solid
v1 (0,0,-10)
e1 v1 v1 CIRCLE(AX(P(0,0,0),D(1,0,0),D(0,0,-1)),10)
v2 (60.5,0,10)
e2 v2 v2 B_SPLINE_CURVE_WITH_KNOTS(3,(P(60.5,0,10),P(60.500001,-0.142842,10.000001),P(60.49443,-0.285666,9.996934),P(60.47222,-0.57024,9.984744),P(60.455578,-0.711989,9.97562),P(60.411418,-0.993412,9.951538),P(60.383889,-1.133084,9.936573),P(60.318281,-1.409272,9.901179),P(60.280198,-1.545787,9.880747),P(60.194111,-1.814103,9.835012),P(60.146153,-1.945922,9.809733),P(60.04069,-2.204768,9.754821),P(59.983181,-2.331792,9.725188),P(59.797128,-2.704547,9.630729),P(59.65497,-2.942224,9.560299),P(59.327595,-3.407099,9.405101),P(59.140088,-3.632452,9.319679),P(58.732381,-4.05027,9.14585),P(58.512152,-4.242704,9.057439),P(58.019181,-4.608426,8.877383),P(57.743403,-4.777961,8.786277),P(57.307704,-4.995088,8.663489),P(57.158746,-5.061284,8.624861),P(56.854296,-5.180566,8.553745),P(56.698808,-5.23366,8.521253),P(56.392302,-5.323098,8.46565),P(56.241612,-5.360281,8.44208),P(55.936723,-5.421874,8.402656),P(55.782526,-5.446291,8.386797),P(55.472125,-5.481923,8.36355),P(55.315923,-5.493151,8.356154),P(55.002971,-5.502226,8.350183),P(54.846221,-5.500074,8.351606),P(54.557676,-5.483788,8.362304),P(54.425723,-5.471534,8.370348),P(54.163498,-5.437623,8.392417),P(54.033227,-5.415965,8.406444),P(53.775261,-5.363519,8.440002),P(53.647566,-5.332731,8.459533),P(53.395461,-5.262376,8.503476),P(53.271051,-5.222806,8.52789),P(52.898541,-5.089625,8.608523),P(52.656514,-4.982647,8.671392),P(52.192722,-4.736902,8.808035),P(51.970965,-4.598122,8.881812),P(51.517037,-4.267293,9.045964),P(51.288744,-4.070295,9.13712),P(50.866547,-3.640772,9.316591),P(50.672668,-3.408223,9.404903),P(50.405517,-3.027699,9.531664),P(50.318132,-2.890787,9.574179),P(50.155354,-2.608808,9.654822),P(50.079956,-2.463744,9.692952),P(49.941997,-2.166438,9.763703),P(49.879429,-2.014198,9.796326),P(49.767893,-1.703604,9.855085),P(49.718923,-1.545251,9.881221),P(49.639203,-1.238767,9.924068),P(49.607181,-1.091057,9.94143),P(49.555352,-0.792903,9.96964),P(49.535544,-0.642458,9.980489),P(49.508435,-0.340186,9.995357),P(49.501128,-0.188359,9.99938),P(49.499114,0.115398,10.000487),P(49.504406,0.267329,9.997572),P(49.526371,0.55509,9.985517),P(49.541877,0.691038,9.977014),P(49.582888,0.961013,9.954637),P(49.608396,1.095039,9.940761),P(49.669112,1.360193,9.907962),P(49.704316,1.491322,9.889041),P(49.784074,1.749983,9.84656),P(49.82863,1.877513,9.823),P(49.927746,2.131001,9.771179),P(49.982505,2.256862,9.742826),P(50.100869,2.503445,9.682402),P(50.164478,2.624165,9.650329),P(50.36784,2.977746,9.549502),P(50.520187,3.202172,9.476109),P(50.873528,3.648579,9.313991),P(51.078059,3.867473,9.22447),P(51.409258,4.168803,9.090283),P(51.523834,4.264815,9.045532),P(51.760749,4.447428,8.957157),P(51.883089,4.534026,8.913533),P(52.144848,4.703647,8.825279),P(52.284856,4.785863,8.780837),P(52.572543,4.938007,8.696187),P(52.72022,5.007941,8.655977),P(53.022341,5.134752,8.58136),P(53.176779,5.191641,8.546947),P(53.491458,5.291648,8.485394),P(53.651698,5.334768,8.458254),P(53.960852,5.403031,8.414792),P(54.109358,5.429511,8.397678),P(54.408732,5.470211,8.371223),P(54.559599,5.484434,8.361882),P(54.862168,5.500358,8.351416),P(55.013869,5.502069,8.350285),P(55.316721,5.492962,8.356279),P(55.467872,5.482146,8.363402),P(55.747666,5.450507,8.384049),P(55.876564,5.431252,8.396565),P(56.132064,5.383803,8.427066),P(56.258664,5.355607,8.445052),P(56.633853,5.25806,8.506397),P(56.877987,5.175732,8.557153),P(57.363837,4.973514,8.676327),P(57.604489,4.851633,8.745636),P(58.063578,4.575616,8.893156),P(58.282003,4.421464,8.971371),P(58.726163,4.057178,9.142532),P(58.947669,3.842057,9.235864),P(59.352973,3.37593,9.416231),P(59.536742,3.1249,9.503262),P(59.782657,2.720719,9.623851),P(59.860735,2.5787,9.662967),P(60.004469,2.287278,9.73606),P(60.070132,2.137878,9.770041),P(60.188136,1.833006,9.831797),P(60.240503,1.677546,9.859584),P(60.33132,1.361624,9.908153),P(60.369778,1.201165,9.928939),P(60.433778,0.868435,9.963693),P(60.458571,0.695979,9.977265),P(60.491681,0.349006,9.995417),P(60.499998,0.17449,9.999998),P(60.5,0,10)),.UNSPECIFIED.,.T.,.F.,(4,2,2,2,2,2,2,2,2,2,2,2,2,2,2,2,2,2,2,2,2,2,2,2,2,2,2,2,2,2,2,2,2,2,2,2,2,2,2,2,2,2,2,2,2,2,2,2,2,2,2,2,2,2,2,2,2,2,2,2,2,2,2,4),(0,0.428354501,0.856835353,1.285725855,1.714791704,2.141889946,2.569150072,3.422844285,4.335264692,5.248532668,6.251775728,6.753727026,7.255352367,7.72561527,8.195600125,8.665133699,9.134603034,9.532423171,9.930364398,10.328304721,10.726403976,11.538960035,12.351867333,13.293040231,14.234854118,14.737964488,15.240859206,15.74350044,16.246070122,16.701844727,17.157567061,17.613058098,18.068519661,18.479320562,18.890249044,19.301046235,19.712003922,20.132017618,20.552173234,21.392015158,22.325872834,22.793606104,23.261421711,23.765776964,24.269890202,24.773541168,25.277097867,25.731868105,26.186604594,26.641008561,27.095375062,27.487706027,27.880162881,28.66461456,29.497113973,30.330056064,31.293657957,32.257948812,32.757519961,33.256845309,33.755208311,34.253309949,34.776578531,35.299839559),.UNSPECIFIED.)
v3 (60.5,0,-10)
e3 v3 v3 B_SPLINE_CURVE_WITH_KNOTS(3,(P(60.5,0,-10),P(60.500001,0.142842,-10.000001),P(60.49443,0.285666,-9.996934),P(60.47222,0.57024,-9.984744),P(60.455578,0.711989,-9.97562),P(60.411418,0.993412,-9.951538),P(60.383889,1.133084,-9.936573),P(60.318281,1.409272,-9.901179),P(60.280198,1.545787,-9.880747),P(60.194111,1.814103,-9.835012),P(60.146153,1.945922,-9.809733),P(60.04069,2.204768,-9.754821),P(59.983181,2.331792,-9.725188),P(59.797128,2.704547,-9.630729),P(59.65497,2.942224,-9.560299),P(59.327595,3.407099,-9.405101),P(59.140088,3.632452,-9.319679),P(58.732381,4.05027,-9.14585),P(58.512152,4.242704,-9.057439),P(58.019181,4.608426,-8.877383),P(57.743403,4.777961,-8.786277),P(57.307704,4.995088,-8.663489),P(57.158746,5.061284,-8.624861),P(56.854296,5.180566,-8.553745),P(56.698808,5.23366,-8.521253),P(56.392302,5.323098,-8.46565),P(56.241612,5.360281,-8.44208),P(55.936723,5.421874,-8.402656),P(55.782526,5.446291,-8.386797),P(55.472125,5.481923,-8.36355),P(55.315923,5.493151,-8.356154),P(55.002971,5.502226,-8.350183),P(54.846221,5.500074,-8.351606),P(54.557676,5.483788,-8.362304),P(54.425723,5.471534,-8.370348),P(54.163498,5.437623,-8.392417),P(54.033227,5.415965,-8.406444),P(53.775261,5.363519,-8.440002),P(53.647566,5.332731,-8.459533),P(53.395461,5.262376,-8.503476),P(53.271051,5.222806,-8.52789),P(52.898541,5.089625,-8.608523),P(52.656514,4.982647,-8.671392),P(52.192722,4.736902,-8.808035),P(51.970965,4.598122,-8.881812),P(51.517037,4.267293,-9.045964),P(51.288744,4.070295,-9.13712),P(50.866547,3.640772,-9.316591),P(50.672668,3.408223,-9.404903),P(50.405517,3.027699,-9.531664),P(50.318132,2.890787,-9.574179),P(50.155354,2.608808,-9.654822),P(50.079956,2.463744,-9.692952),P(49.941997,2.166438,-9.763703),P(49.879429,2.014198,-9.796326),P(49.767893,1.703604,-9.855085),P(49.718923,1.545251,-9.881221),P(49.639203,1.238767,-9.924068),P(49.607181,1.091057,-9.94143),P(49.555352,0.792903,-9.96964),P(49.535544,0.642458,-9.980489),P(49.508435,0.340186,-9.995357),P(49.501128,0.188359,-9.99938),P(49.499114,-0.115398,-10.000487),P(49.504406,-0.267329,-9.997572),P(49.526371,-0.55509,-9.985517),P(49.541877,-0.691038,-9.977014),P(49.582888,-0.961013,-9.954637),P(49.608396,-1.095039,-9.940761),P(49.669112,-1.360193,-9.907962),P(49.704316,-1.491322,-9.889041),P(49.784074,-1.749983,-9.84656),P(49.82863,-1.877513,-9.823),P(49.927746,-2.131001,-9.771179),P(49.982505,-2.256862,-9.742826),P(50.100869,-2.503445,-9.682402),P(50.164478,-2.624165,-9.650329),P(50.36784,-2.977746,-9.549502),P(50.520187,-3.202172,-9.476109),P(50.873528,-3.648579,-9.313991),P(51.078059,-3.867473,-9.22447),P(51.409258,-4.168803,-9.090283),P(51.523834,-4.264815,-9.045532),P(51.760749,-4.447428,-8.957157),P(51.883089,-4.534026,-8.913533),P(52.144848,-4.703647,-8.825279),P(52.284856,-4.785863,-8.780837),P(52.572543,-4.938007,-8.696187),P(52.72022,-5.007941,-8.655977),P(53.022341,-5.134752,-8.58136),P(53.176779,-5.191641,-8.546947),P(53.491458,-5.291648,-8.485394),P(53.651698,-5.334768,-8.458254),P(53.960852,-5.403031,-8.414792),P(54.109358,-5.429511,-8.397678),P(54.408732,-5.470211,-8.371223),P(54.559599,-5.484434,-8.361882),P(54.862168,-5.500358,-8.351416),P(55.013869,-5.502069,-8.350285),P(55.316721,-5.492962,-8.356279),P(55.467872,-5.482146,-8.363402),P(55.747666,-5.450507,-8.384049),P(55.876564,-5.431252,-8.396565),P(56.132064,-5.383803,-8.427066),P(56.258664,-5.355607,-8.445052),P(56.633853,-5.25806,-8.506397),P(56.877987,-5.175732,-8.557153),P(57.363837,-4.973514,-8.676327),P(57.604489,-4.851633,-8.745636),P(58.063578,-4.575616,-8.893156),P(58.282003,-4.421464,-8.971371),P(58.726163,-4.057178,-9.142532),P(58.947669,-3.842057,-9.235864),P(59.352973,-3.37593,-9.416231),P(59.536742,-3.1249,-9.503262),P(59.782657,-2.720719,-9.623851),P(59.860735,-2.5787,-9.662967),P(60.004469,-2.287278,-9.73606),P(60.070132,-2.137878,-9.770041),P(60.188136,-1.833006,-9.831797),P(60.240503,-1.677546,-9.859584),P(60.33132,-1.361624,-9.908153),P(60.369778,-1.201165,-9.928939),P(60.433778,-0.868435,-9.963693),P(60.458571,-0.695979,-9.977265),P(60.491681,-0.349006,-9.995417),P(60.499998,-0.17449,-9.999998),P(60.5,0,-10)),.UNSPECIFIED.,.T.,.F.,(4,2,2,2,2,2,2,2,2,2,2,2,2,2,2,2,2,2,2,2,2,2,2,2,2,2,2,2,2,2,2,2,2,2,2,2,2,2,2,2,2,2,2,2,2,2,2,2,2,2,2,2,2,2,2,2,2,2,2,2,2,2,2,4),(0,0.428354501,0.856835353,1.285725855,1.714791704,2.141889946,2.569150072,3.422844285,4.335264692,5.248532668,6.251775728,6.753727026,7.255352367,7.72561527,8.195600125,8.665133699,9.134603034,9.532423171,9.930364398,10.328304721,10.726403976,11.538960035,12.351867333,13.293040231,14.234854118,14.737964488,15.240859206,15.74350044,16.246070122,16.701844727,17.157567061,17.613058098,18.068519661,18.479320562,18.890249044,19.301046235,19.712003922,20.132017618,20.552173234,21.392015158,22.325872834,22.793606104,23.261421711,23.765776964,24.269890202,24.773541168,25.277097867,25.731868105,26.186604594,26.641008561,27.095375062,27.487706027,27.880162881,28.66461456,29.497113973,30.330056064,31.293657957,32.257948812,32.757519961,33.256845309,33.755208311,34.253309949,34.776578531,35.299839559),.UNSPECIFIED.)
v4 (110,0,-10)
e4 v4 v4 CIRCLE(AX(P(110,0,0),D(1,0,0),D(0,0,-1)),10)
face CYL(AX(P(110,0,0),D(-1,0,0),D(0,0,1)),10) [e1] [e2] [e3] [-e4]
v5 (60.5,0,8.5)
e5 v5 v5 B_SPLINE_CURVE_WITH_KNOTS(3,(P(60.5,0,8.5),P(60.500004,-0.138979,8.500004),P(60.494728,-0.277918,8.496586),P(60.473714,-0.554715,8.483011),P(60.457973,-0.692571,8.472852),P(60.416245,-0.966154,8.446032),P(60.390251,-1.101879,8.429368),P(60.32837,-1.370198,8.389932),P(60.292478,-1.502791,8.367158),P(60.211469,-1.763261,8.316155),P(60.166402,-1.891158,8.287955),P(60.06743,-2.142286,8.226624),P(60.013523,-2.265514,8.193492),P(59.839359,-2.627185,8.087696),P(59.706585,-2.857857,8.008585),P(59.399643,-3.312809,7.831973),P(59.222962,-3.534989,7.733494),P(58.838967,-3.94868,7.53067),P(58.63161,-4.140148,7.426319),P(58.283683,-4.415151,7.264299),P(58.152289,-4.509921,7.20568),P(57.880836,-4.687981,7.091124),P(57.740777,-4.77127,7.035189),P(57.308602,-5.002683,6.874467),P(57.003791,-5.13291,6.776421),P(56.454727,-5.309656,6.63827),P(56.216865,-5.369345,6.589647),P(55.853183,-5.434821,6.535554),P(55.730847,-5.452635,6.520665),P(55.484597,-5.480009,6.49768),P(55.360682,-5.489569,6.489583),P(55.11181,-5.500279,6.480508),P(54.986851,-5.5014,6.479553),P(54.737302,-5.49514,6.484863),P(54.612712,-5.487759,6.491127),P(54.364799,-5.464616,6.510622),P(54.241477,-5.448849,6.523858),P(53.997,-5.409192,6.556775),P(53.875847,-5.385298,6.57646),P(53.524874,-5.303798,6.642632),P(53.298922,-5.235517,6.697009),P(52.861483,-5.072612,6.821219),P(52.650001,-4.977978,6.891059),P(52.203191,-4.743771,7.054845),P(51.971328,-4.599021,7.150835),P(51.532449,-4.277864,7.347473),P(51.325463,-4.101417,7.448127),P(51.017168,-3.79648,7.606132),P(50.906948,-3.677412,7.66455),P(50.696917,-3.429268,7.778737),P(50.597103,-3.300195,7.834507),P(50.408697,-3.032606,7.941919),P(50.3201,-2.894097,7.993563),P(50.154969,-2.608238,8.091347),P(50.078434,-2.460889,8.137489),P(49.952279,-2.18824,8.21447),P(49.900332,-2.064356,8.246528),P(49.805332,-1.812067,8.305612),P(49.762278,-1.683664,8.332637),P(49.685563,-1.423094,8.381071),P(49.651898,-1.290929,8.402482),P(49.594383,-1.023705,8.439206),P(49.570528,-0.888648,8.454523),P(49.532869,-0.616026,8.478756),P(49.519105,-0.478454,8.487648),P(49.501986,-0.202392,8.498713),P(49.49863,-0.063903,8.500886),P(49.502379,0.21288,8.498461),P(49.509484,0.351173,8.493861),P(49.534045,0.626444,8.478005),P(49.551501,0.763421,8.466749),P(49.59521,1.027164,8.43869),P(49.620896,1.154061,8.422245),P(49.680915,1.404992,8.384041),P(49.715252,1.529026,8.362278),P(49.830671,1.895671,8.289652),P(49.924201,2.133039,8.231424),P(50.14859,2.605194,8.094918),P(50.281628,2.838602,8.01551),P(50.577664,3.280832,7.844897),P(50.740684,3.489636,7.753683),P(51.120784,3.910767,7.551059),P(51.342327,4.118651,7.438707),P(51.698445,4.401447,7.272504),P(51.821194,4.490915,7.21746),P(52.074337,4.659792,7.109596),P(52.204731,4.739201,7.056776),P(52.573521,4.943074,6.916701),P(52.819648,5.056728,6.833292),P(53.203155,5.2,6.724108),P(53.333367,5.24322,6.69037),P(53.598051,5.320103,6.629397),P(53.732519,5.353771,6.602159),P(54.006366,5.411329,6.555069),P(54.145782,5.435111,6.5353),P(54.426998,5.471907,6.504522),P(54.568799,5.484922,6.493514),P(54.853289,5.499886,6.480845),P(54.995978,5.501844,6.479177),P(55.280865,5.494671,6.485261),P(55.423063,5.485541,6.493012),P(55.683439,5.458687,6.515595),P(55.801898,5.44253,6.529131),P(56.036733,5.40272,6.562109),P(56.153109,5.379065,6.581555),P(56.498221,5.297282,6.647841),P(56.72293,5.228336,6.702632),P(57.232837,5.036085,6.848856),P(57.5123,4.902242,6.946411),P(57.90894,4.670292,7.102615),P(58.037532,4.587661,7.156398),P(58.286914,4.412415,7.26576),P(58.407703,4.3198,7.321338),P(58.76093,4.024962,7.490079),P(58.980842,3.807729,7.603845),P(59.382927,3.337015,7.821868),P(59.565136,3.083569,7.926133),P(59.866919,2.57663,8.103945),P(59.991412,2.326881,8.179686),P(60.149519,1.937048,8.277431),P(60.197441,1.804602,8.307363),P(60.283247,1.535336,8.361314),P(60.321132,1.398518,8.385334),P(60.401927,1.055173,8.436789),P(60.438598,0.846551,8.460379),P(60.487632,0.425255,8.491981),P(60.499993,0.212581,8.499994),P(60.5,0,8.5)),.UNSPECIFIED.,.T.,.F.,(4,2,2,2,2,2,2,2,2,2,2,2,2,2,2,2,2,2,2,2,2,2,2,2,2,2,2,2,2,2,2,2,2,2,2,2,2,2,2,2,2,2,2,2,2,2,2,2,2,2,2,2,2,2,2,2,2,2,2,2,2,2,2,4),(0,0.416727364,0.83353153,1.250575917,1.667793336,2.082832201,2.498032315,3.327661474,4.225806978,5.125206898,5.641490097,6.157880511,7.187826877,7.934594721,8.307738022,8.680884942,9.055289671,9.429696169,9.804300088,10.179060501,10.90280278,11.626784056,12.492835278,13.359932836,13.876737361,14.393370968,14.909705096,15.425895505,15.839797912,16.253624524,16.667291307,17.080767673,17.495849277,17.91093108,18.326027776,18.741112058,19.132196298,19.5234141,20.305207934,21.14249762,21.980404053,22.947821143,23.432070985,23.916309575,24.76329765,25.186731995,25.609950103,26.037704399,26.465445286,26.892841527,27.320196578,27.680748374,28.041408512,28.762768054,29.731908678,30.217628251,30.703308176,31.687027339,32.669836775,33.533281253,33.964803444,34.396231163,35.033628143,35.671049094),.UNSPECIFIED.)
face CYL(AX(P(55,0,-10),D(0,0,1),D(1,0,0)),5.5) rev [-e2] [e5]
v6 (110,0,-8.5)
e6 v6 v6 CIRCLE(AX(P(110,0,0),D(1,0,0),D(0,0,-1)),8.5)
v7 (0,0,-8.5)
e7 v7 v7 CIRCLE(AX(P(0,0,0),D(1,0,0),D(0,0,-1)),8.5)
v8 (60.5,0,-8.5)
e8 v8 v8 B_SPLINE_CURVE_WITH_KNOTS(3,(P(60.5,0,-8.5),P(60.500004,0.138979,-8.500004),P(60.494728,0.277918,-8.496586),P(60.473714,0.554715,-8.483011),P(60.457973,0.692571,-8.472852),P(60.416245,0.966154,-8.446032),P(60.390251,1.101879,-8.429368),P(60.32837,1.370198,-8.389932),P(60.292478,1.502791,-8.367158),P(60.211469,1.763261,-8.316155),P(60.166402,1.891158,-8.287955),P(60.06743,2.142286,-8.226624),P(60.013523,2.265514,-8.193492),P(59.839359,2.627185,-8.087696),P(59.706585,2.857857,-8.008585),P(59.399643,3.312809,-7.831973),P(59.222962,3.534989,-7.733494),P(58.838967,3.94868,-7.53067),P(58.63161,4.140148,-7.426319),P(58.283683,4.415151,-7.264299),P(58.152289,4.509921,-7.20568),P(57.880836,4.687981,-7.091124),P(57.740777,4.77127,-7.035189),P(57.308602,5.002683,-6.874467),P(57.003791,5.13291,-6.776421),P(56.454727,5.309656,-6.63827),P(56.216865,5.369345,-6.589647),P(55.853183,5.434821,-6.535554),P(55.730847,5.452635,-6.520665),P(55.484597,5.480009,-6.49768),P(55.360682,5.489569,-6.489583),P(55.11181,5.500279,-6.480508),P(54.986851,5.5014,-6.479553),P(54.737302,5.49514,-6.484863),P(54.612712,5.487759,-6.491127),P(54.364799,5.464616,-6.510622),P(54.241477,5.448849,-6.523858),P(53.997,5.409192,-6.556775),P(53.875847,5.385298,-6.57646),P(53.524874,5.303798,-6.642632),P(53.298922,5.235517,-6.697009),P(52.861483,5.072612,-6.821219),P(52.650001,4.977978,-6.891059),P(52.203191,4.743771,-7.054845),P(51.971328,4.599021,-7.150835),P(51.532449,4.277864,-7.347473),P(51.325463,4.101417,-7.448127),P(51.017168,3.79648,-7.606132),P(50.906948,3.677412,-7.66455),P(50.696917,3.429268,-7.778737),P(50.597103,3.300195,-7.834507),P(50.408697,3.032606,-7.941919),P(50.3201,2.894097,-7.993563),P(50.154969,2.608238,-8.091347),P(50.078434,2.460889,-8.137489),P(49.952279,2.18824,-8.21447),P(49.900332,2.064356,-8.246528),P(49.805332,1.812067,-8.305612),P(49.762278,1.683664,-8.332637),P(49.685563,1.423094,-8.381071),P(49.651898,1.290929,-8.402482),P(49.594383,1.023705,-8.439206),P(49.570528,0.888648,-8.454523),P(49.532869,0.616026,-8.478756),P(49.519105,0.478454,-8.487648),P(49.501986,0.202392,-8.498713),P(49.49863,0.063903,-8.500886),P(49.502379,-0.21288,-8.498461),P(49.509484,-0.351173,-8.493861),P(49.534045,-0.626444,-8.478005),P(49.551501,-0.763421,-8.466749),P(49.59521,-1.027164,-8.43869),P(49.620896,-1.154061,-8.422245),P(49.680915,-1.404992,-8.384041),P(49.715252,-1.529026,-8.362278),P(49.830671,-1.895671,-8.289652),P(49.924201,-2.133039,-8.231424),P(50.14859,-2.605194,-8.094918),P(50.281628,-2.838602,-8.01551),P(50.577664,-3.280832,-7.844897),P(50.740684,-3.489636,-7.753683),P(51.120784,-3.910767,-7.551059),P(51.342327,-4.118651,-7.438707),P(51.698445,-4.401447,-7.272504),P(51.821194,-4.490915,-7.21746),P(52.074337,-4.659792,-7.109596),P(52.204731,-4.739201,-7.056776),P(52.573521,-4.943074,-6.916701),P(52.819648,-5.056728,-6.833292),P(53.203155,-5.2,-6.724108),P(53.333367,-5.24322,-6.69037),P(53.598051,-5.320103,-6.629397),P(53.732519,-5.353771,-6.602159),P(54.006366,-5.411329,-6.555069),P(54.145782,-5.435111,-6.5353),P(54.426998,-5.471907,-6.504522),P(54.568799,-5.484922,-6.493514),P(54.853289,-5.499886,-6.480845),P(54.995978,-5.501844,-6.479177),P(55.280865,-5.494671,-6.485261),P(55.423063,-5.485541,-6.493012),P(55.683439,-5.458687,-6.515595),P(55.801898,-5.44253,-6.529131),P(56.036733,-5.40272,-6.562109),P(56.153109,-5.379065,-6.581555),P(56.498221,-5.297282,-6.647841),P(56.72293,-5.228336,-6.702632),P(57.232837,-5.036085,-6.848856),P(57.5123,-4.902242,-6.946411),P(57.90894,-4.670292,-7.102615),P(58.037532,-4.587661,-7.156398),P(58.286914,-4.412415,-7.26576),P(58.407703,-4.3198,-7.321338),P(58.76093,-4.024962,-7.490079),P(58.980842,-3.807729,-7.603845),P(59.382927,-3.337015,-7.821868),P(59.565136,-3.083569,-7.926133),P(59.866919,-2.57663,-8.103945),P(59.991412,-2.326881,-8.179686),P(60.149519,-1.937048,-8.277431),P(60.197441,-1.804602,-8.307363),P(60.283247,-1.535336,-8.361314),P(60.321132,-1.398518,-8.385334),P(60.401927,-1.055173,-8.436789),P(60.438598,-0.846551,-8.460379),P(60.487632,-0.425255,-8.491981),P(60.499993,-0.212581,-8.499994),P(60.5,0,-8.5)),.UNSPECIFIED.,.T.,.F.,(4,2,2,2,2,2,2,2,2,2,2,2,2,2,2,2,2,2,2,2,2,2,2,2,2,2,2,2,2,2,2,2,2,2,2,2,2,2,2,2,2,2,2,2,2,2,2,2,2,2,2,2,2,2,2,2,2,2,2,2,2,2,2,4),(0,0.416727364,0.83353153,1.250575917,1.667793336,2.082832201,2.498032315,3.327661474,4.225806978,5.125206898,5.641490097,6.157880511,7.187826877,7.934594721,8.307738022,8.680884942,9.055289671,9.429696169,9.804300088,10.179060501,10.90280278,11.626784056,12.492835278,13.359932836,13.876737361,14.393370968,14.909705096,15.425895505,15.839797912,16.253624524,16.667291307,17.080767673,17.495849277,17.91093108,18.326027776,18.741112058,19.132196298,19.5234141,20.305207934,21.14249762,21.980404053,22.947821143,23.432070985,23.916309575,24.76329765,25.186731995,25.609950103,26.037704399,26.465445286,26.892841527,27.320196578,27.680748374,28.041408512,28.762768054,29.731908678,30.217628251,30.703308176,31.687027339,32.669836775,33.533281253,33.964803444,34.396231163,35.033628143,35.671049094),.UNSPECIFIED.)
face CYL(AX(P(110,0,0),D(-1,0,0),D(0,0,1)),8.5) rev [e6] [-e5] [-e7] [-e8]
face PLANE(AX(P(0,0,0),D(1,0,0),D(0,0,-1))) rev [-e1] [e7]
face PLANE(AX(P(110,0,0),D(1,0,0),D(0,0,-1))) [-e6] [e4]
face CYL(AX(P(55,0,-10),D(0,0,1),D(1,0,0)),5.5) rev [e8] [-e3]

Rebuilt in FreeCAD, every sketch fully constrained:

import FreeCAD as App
import Part
import Sketcher
from FreeCAD import Vector
Q = App.Units.Quantity

doc = App.newDocument("Part")
body = doc.addObject("PartDesign::Body", "Body")

sketch1 = body.newObject("Sketcher::SketchObject", "Sketch")
sketch1.AttachmentSupport = (doc.getObject("YZ_Plane"), [""])
sketch1.MapMode = "FlatFace"
sketch1.addGeometry(Part.Circle(Vector(0, 0, 0), Vector(0, 0, 1), 10), False)
sketch1.addGeometry(Part.Circle(Vector(0, 0, 0), Vector(0, 0, 1), 8), False)
sketch1.addConstraint(Sketcher.Constraint("Coincident", 0, 3, -1, 1))
sketch1.addConstraint(Sketcher.Constraint("Coincident", 1, 3, -1, 1))
sketch1.addConstraint(Sketcher.Constraint("Diameter", 0, Q("20 mm")))
sketch1.addConstraint(Sketcher.Constraint("Diameter", 1, Q("17 mm")))
pad1 = body.newObject("PartDesign::Pad", "Pad")
pad1.Profile = sketch1
pad1.Length = 110

sketch2 = body.newObject("Sketcher::SketchObject", "Sketch001")
sketch2.AttachmentSupport = (doc.getObject("XY_Plane"), [""])
sketch2.MapMode = "FlatFace"
sketch2.addGeometry(Part.Circle(Vector(55, 0, 0), Vector(0, 0, 1), 6), False)
sketch2.addConstraint(Sketcher.Constraint("PointOnObject", 0, 3, -1))
sketch2.addConstraint(Sketcher.Constraint("Diameter", 0, Q("11 mm")))
sketch2.addConstraint(Sketcher.Constraint("DistanceX", -1, 1, 0, 3, Q("55 mm")))
pocket1 = body.newObject("PartDesign::Pocket", "Pocket")
pocket1.Profile = sketch2
pocket1.Type = "ThroughAll"
pocket1.Midplane = True

doc.recompute()
